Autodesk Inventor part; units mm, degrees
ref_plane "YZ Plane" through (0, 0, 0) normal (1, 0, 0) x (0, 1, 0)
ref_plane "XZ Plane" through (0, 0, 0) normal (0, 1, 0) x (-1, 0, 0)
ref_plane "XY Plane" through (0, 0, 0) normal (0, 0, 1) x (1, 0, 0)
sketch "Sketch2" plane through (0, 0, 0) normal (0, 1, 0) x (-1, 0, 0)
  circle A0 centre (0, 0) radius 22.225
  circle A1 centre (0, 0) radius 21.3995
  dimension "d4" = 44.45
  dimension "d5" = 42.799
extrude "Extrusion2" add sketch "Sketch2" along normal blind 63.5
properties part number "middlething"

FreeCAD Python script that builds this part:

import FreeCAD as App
import Part
import Sketcher
Q = App.Units.Quantity

doc = App.newDocument("Part")
body = doc.addObject("PartDesign::Body", "Body")

sketch1 = body.newObject("Sketcher::SketchObject", "Sketch")
sketch1.AttachmentSupport = (doc.getObject("XZ_Plane"), [""])
sketch1.MapMode = "FlatFace"
sketch1.addGeometry([
    Part.Circle(App.Vector(0, 0, 0), App.Vector(0, 0, 1), 22),
    Part.Circle(App.Vector(0, 0, 0), App.Vector(0, 0, 1), 21),
], False)
sketch1.addConstraint([
    Sketcher.Constraint("Coincident", 0, 3, -1, 1),
    Sketcher.Constraint("Coincident", 1, 3, -1, 1),
    Sketcher.Constraint("Diameter", 0, Q("1.75 in")),
    Sketcher.Constraint("Diameter", 1, Q("1.685 in")),
])
pad1 = body.newObject("PartDesign::Pad", "Pad")
pad1.Profile = sketch1
pad1.Length = Q("2.5 in")
pad1.Reversed = True

doc.recompute()
